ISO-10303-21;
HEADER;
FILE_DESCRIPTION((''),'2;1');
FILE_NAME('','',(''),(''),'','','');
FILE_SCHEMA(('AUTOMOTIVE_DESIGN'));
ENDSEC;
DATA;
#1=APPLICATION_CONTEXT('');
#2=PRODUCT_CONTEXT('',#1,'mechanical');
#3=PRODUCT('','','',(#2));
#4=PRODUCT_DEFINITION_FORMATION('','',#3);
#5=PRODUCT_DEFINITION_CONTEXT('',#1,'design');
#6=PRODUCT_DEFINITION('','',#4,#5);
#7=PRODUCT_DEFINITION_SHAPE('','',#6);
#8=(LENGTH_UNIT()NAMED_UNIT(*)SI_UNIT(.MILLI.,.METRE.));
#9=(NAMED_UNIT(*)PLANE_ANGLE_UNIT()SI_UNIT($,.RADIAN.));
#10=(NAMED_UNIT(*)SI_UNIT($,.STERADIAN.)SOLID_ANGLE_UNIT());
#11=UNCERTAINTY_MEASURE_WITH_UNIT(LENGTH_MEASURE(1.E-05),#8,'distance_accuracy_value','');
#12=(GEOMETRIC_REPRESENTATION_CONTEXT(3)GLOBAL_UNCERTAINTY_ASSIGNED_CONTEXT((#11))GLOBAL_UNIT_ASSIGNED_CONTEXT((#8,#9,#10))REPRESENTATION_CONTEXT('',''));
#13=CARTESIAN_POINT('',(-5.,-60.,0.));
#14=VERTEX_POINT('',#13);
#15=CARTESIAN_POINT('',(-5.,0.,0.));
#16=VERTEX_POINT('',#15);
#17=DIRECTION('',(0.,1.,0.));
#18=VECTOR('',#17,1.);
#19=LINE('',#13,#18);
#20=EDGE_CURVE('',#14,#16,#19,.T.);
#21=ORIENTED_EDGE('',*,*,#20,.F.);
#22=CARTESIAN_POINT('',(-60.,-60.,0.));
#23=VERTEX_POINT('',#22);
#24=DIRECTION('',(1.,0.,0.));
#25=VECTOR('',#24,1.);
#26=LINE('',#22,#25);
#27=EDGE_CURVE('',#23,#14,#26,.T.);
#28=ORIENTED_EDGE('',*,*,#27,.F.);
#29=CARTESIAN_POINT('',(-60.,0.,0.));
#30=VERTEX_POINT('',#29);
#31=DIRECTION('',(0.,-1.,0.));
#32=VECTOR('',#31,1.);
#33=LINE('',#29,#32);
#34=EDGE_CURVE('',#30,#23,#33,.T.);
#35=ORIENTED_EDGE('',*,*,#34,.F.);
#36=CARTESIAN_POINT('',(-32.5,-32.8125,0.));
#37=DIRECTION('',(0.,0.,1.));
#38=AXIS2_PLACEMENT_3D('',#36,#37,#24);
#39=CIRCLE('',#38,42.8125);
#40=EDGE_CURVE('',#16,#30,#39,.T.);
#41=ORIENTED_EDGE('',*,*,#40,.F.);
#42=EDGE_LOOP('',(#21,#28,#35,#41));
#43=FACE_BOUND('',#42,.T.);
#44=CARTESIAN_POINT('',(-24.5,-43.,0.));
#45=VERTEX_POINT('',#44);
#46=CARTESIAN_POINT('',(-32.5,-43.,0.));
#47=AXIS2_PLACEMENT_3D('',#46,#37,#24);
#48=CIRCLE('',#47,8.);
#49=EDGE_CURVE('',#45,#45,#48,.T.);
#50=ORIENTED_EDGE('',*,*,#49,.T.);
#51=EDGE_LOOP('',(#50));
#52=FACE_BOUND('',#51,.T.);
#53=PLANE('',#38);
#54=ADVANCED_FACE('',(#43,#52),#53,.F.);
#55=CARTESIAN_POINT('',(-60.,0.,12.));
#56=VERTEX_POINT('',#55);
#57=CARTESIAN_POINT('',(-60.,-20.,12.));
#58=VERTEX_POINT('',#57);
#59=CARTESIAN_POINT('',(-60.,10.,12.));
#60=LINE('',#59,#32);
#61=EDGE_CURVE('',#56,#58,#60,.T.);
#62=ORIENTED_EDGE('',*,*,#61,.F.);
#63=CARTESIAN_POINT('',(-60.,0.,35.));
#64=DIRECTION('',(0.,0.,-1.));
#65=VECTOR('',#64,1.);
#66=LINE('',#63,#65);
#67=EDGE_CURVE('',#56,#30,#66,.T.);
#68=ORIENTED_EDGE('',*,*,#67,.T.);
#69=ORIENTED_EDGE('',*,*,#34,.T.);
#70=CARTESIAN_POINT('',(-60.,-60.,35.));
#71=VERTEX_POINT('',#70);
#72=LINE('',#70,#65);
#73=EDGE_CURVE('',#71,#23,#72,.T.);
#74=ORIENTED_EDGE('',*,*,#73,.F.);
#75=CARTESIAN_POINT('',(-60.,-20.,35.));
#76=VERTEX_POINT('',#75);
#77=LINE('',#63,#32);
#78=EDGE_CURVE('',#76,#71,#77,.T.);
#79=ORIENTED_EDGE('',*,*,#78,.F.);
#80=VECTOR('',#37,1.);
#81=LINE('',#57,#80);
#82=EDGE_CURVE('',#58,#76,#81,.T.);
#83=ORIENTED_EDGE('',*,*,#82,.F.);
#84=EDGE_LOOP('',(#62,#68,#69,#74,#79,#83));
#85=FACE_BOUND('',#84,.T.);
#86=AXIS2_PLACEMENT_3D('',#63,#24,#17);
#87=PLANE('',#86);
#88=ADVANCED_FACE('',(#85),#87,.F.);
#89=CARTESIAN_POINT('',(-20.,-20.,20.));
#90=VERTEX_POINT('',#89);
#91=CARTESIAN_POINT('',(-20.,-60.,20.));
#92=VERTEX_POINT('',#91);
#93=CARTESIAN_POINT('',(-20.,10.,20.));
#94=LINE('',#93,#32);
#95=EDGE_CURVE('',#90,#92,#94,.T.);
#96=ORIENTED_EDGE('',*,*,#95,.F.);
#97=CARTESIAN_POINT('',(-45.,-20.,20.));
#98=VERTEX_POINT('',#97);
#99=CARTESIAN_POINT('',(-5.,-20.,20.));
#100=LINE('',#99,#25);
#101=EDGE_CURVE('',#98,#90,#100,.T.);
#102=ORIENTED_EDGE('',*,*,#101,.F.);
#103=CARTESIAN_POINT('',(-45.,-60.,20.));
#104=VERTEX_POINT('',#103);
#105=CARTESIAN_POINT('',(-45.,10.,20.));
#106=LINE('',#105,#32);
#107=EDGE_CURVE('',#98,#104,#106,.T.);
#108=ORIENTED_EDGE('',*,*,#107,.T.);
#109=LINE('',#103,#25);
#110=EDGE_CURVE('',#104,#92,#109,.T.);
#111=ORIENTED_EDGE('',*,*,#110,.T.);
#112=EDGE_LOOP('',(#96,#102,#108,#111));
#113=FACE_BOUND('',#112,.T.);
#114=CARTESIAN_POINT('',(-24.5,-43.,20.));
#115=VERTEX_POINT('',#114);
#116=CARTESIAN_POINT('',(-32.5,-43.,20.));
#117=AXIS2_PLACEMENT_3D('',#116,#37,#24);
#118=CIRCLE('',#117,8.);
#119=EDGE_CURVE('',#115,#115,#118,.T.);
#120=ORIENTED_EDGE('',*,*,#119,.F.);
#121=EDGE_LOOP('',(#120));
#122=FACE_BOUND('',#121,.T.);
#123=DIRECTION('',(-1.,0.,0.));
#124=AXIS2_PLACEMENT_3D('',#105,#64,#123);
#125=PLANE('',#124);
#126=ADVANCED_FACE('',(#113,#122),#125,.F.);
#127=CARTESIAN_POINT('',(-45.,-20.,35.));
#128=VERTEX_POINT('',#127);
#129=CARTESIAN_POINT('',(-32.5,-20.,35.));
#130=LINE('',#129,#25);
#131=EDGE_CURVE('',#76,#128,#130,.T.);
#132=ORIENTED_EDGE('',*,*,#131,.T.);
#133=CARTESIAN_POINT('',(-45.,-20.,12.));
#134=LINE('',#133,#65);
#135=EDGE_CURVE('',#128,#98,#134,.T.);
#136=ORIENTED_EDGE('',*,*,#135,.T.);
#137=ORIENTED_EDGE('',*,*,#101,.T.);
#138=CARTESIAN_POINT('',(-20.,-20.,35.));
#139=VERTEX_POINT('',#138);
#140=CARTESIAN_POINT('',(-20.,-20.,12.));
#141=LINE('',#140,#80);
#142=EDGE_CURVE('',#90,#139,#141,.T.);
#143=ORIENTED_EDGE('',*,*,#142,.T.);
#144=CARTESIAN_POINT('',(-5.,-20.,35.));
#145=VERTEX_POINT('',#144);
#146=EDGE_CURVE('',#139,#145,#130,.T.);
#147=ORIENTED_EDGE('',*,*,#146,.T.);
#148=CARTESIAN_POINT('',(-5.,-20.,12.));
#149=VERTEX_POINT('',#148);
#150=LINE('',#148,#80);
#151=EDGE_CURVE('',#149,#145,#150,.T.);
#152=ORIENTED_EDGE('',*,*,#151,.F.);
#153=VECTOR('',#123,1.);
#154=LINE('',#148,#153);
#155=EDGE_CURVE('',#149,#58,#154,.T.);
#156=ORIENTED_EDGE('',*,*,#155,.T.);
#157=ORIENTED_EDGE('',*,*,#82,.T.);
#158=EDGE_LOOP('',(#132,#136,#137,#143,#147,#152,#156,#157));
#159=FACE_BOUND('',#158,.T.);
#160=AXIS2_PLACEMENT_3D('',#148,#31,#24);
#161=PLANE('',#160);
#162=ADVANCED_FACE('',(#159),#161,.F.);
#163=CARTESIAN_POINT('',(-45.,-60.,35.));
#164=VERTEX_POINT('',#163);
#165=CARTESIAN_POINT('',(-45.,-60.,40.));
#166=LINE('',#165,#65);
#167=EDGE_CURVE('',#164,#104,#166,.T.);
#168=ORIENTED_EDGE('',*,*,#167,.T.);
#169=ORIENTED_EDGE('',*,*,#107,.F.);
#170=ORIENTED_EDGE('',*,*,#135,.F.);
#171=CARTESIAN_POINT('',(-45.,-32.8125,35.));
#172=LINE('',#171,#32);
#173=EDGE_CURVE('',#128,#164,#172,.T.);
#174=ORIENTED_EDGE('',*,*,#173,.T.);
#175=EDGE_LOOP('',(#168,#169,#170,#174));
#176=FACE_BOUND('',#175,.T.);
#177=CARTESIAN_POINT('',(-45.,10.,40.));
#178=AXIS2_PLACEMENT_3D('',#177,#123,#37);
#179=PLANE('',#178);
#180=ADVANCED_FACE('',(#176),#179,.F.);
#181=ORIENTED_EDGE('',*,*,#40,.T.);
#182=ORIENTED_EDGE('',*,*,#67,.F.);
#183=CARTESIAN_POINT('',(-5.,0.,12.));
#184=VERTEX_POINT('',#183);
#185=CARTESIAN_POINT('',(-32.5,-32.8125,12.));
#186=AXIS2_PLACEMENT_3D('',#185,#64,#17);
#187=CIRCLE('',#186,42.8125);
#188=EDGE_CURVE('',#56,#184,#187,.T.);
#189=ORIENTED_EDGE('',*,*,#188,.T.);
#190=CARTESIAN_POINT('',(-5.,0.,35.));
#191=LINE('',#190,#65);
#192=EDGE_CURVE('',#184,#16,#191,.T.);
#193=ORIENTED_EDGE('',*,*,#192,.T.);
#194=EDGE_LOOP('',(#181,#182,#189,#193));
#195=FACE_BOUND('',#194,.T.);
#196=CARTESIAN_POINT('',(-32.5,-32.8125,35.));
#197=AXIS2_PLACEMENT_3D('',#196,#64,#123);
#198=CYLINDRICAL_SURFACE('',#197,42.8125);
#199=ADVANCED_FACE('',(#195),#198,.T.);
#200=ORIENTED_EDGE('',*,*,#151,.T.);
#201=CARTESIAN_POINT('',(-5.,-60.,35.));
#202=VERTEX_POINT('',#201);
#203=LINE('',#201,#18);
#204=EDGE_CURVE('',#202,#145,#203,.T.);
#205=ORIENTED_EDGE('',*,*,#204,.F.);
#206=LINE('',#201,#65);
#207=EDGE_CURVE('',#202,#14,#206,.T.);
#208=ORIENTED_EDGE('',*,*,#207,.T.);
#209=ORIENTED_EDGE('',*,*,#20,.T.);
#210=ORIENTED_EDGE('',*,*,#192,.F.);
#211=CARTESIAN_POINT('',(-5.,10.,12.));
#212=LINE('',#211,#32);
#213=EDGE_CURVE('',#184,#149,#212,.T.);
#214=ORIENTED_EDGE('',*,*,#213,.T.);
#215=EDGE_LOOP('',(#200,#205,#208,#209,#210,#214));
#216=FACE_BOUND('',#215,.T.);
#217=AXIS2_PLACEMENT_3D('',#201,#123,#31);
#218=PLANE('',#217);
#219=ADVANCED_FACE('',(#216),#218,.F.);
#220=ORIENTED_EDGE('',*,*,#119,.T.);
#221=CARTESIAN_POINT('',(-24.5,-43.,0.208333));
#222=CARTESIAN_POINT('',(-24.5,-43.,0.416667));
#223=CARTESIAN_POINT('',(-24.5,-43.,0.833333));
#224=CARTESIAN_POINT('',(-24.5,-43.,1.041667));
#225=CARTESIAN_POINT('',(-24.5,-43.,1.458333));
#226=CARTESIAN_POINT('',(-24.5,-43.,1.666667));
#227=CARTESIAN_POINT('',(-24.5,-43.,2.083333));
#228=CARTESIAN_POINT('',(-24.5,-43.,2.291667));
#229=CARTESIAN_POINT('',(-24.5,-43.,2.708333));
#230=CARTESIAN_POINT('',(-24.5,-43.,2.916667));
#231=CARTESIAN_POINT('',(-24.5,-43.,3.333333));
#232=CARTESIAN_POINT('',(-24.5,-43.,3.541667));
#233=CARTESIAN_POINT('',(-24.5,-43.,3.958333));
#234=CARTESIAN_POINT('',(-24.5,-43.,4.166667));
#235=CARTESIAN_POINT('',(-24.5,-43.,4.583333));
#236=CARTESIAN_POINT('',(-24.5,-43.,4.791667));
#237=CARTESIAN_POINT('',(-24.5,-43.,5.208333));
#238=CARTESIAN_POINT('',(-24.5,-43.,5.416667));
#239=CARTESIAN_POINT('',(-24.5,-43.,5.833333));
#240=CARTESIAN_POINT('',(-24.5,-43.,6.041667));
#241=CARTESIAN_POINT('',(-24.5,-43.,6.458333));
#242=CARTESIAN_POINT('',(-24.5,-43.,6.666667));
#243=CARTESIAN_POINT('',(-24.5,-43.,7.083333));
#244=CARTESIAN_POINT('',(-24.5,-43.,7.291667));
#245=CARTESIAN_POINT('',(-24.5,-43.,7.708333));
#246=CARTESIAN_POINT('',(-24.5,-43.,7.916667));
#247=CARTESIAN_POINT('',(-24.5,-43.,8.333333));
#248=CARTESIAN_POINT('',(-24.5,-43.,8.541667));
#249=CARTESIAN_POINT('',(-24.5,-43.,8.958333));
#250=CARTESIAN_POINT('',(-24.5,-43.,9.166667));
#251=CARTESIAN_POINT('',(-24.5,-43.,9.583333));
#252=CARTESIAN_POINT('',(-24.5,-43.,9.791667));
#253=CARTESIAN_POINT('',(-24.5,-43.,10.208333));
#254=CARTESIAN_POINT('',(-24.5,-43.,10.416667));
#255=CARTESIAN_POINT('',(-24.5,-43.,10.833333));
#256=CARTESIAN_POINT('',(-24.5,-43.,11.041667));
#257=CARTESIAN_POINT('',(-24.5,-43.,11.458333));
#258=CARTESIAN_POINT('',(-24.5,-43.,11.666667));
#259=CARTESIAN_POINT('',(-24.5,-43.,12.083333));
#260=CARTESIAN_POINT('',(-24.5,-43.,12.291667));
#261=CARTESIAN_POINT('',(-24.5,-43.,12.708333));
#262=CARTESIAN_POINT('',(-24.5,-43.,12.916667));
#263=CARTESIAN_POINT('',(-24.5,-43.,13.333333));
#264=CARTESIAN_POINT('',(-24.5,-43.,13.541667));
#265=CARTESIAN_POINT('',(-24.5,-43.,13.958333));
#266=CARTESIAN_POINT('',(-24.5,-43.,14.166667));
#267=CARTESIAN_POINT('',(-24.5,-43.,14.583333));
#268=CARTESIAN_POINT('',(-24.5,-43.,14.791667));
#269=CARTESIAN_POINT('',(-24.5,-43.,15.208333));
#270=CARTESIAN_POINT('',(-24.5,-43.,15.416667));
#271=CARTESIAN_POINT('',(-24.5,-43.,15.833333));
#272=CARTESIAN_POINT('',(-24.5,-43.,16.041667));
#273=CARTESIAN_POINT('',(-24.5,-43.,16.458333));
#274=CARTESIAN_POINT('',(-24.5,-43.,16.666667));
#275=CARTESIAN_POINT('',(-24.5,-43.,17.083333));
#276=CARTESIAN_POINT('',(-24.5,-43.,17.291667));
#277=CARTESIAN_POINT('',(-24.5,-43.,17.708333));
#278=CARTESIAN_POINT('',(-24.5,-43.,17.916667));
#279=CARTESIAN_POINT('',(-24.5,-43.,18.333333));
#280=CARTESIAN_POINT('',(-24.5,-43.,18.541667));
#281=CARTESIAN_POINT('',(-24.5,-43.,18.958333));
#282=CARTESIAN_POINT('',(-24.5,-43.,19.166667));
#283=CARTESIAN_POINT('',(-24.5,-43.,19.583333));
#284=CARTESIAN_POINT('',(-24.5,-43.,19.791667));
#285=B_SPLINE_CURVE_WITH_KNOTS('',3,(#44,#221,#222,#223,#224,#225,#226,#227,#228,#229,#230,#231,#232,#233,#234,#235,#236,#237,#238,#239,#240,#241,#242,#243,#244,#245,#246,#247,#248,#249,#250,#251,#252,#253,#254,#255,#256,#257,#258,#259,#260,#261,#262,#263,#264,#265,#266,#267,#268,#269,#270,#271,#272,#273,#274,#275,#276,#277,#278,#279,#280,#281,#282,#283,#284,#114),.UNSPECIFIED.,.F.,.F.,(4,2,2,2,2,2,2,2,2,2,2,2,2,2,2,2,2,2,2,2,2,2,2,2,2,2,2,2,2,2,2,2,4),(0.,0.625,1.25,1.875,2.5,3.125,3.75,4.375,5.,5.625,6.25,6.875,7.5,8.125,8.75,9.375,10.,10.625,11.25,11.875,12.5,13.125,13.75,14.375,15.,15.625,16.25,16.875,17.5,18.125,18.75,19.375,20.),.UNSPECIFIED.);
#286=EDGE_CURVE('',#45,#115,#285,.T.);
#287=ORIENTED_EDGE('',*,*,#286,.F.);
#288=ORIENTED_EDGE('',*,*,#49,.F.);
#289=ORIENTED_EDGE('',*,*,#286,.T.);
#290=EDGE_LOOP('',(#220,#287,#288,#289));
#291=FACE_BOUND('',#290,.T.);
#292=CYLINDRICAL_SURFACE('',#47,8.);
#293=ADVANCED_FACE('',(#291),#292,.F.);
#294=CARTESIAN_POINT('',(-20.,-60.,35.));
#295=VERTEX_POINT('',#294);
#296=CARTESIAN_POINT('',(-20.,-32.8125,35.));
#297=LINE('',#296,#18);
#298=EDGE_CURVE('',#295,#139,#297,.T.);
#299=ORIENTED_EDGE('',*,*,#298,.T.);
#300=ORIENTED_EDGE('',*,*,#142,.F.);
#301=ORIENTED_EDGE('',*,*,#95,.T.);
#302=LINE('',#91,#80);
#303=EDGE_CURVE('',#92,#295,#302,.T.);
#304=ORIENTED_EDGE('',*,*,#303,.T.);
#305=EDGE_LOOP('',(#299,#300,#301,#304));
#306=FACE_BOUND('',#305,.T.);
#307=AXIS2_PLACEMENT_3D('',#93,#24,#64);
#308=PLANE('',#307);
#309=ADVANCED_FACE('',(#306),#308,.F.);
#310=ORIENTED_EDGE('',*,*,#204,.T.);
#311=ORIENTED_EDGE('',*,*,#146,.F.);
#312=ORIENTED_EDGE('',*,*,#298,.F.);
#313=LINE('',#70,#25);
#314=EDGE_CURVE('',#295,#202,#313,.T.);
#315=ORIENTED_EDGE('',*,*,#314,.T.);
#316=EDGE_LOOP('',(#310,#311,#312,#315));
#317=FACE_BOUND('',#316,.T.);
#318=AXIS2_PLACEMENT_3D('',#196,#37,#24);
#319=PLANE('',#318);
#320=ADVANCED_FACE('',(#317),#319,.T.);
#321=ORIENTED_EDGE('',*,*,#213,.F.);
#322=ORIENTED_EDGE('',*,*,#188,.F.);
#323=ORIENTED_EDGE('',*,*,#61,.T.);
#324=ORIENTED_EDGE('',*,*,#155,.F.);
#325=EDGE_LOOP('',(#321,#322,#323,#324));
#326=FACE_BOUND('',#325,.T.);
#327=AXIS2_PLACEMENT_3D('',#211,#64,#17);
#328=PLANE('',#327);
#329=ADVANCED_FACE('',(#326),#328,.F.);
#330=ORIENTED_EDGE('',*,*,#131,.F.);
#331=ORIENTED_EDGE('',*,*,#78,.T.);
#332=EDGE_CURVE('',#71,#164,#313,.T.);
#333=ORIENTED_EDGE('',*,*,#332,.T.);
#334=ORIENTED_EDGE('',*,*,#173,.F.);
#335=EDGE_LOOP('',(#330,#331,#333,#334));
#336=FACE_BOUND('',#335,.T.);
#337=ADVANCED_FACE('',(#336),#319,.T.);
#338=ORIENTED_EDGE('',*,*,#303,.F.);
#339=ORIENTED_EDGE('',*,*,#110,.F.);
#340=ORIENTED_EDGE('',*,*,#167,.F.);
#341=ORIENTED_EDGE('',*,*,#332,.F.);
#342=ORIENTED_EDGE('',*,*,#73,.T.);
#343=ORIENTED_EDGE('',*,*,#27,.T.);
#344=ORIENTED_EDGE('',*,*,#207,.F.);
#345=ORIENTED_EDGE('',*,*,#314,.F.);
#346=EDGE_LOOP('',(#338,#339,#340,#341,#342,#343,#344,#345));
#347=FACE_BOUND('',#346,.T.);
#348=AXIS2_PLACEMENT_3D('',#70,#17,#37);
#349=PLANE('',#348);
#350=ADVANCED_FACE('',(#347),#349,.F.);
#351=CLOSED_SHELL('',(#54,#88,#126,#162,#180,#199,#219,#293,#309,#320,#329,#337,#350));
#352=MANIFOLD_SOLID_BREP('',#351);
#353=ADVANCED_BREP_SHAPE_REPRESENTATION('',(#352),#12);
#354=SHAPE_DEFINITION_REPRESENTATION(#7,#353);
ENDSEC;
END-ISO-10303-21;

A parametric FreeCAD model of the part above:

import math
import FreeCAD as App
import Part
import Sketcher
Q = App.Units.Quantity


def add_polygon(sketch, points):
    """Adds a closed chain of lines whose ends are joined by coincident constraints."""
    first, n = sketch.GeometryCount, len(points)
    for a, b in zip(points, points[1:] + points[:1]):
        sketch.addGeometry(Part.LineSegment(App.Vector(*a, 0), App.Vector(*b, 0)), False)
    for i in range(n):
        sketch.addConstraint(Sketcher.Constraint("Coincident", first + i, 2, first + (i + 1) % n, 1))

doc = App.newDocument("Part")
params = doc.addObject("Spreadsheet::Sheet", "Params")
for row, (alias, value) in enumerate([
    ("sketch1_width", "55 mm"),
    ("sketch1_height", "60 mm"),
    ("pad1_length", "35 mm"),
    ("sketch2_width", "30 mm"),
    ("sketch3_width", "25 mm"),
    ("sketch3_height", "20 mm"),
    ("sketch4_diameter", "16 mm"),
], start=1):
    params.set(f"A{row}", alias)
    params.set(f"B{row}", "=" + value)
    params.setAlias(f"B{row}", alias)

body = doc.addObject("PartDesign::Body", "Body")

sketch1 = body.newObject("Sketcher::SketchObject", "Sketch")
sketch1.AttachmentSupport = (doc.getObject("XY_Plane"), [""])
sketch1.MapMode = "FlatFace"
sketch1.addGeometry([
    Part.LineSegment(App.Vector(-60, 0, 0), App.Vector(-60, -60, 0)),
    Part.LineSegment(App.Vector(-60, -60, 0), App.Vector(-5, -60, 0)),
    Part.LineSegment(App.Vector(-5, -60, 0), App.Vector(-5, 0, 0)),
    Part.ArcOfCircle(Part.Circle(App.Vector(-32, -33, 0), App.Vector(0, 0, 1), 43), math.radians(50), math.radians(130)),
], False)
sketch1.addConstraint([
    Sketcher.Constraint("Coincident", 0, 2, 1, 1),
    Sketcher.Constraint("Coincident", 1, 2, 2, 1),
    Sketcher.Constraint("Coincident", 2, 2, 3, 1),
    Sketcher.Constraint("Coincident", 3, 2, 0, 1),
    Sketcher.Constraint("Vertical", 0),
    Sketcher.Constraint("Horizontal", 1),
    Sketcher.Constraint("Vertical", 2),
    Sketcher.Constraint("PointOnObject", 2, 2, -1),
    Sketcher.Constraint("PointOnObject", 3, 2, -1),
    Sketcher.Constraint("DistanceX", 1, 1, 1, 2, Q("55 mm")),
    Sketcher.Constraint("DistanceY", 0, 2, 0, 1, Q("60 mm")),
    Sketcher.Constraint("DistanceX", 0, 2, -1, 1, Q("60 mm")),
    Sketcher.Constraint("Radius", 3, Q("42.8125 mm")),
])
sketch1.setExpression("Constraints[9]", "Params.sketch1_width")
sketch1.setExpression("Constraints[10]", "Params.sketch1_height")
pad1 = body.newObject("PartDesign::Pad", "Pad")
pad1.Profile = sketch1
pad1.setExpression("Length", "Params.pad1_length")

sketch2 = body.newObject("Sketcher::SketchObject", "Sketch001")
sketch2.AttachmentSupport = (doc.getObject("YZ_Plane"), [""])
sketch2.MapMode = "FlatFace"
sketch2.AttachmentOffset = App.Placement(App.Vector(0, 0, -60), App.Rotation())
add_polygon(sketch2, [(10, 12), (-20, 12), (-20, 42), (10, 42)])
sketch2.addConstraint([
    Sketcher.Constraint("Horizontal", 0),
    Sketcher.Constraint("Vertical", 1),
    Sketcher.Constraint("Horizontal", 2),
    Sketcher.Constraint("Vertical", 3),
    Sketcher.Constraint("Equal", 2, 1),
    Sketcher.Constraint("DistanceX", 0, 2, 0, 1, Q("30 mm")),
    Sketcher.Constraint("DistanceX", 0, 2, -1, 1, Q("20 mm")),
    Sketcher.Constraint("DistanceY", -1, 1, 0, 2, Q("12 mm")),
])
sketch2.setExpression("Constraints[9]", "Params.sketch2_width")
pocket1 = body.newObject("PartDesign::Pocket", "Pocket")
pocket1.Profile = sketch2
pocket1.Type = "ThroughAll"
pocket1.Reversed = True

sketch3 = body.newObject("Sketcher::SketchObject", "Sketch002")
sketch3.AttachmentSupport = (doc.getObject("XZ_Plane"), [""])
sketch3.MapMode = "FlatFace"
sketch3.AttachmentOffset = App.Placement(App.Vector(0, 0, 60), App.Rotation())
add_polygon(sketch3, [(-45, 40), (-45, 20), (-20, 20), (-20, 40)])
sketch3.addConstraint([
    Sketcher.Constraint("Vertical", 0),
    Sketcher.Constraint("Horizontal", 1),
    Sketcher.Constraint("Vertical", 2),
    Sketcher.Constraint("Horizontal", 3),
    Sketcher.Constraint("DistanceX", 1, 1, 1, 2, Q("25 mm")),
    Sketcher.Constraint("DistanceY", 0, 2, 0, 1, Q("20 mm")),
    Sketcher.Constraint("DistanceX", 0, 2, -1, 1, Q("45 mm")),
    Sketcher.Constraint("DistanceY", -1, 1, 0, 2, Q("20 mm")),
])
sketch3.setExpression("Constraints[8]", "Params.sketch3_width")
sketch3.setExpression("Constraints[9]", "Params.sketch3_height")
pocket2 = body.newObject("PartDesign::Pocket", "Pocket001")
pocket2.Profile = sketch3
pocket2.Type = "ThroughAll"

sketch4 = body.newObject("Sketcher::SketchObject", "Sketch003")
sketch4.AttachmentSupport = (doc.getObject("XY_Plane"), [""])
sketch4.MapMode = "FlatFace"
sketch4.AttachmentOffset = App.Placement(App.Vector(0, 0, 20), App.Rotation())
sketch4.addGeometry(Part.Circle(App.Vector(-32, -43, 0), App.Vector(0, 0, 1), 8), False)
sketch4.addConstraint([
    Sketcher.Constraint("Diameter", 0, Q("16 mm")),
    Sketcher.Constraint("DistanceY", 0, 3, -1, 1, Q("43 mm")),
    Sketcher.Constraint("DistanceX", 0, 3, -1, 1, Q("32.5 mm")),
])
sketch4.setExpression("Constraints[0]", "Params.sketch4_diameter")
pocket3 = body.newObject("PartDesign::Pocket", "Pocket002")
pocket3.Profile = sketch4
pocket3.Type = "ThroughAll"

doc.recompute()
